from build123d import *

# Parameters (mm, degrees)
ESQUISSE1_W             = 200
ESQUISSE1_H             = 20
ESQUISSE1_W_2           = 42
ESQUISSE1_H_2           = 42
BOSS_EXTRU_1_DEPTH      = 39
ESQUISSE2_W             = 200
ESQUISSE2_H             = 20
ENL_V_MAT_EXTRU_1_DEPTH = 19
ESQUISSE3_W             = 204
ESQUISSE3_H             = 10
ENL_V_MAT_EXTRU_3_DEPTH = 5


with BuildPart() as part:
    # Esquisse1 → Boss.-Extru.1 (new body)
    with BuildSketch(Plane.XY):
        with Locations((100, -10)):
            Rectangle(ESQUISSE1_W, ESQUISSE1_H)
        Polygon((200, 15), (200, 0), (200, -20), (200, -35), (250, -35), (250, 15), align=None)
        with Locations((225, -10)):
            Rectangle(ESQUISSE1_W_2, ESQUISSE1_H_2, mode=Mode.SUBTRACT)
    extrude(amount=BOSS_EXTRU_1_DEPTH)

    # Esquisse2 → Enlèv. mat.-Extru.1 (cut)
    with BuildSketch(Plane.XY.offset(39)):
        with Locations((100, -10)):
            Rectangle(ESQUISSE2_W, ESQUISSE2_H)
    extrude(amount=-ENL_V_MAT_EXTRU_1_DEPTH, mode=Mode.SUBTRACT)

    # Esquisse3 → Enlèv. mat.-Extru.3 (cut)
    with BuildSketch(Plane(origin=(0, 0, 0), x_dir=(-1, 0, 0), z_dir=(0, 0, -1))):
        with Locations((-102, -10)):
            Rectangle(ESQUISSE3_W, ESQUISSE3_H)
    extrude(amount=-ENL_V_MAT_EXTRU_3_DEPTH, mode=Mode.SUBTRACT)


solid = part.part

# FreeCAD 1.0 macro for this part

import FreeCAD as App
import Part
import Sketcher

doc = App.newDocument("Part")
body = doc.addObject("PartDesign::Body", "Body")

# Sketch on XY plane
sketch1 = doc.addObject("Sketcher::SketchObject", "Sketch")
body.addObject(sketch1)
sketch1.AttachmentSupport = (doc.XY_Plane, [""])
sketch1.MapMode = "FlatFace"
sketch1.addGeometry(Part.LineSegment(App.Vector(0, 0, 0), App.Vector(0, -20, 0)), False)
sketch1.addGeometry(Part.LineSegment(App.Vector(0, -20, 0), App.Vector(200, -20, 0)), False)
sketch1.addGeometry(Part.LineSegment(App.Vector(200, -20, 0), App.Vector(200, -35, 0)), False)
sketch1.addGeometry(Part.LineSegment(App.Vector(200, -35, 0), App.Vector(250, -35, 0)), False)
sketch1.addGeometry(Part.LineSegment(App.Vector(250, -35, 0), App.Vector(250, 15, 0)), False)
sketch1.addGeometry(Part.LineSegment(App.Vector(250, 15, 0), App.Vector(200, 15, 0)), False)
sketch1.addGeometry(Part.LineSegment(App.Vector(200, 15, 0), App.Vector(200, 0, 0)), False)
sketch1.addGeometry(Part.LineSegment(App.Vector(200, 0, 0), App.Vector(0, 0, 0)), False)
sketch1.addGeometry(Part.LineSegment(App.Vector(246, -31, 0), App.Vector(204, -31, 0)), False)
sketch1.addGeometry(Part.LineSegment(App.Vector(204, -31, 0), App.Vector(204, 11, 0)), False)
sketch1.addGeometry(Part.LineSegment(App.Vector(204, 11, 0), App.Vector(246, 11, 0)), False)
sketch1.addGeometry(Part.LineSegment(App.Vector(246, 11, 0), App.Vector(246, -31, 0)), False)
sketch1.addConstraint(Sketcher.Constraint("Coincident", 0, 2, 1, 1))
sketch1.addConstraint(Sketcher.Constraint("Coincident", 1, 2, 2, 1))
sketch1.addConstraint(Sketcher.Constraint("Coincident", 2, 2, 3, 1))
sketch1.addConstraint(Sketcher.Constraint("Coincident", 3, 2, 4, 1))
sketch1.addConstraint(Sketcher.Constraint("Coincident", 4, 2, 5, 1))
sketch1.addConstraint(Sketcher.Constraint("Coincident", 5, 2, 6, 1))
sketch1.addConstraint(Sketcher.Constraint("Coincident", 6, 2, 7, 1))
sketch1.addConstraint(Sketcher.Constraint("Coincident", 7, 2, 0, 1))
sketch1.addConstraint(Sketcher.Constraint("Coincident", 8, 2, 9, 1))
sketch1.addConstraint(Sketcher.Constraint("Coincident", 9, 2, 10, 1))
sketch1.addConstraint(Sketcher.Constraint("Coincident", 10, 2, 11, 1))
sketch1.addConstraint(Sketcher.Constraint("Coincident", 11, 2, 8, 1))
sketch1.addConstraint(Sketcher.Constraint("Vertical", 0))
sketch1.addConstraint(Sketcher.Constraint("Horizontal", 1))
sketch1.addConstraint(Sketcher.Constraint("Vertical", 2))
sketch1.addConstraint(Sketcher.Constraint("Horizontal", 3))
sketch1.addConstraint(Sketcher.Constraint("Vertical", 4))
sketch1.addConstraint(Sketcher.Constraint("Horizontal", 5))
sketch1.addConstraint(Sketcher.Constraint("Vertical", 6))
sketch1.addConstraint(Sketcher.Constraint("Horizontal", 7))
sketch1.addConstraint(Sketcher.Constraint("Horizontal", 8))
sketch1.addConstraint(Sketcher.Constraint("Vertical", 9))
sketch1.addConstraint(Sketcher.Constraint("Horizontal", 10))
sketch1.addConstraint(Sketcher.Constraint("Vertical", 11))
sketch1.addConstraint(Sketcher.Constraint("Coincident", 7, 2, -1, 1))
sketch1.addConstraint(Sketcher.Constraint("Vertical", 2, 2, 5, 2))
sketch1.addConstraint(Sketcher.Constraint("Equal", 5, 4))
sketch1.addConstraint(Sketcher.Constraint("Equal", 2, 6))
sketch1.addConstraint(Sketcher.Constraint("Equal", 10, 9))
sketch1.addConstraint(Sketcher.Constraint("DistanceX", 1, 1, 1, 2, 200.0))
sketch1.addConstraint(Sketcher.Constraint("DistanceX", 3, 1, 3, 2, 50.0))
sketch1.addConstraint(Sketcher.Constraint("DistanceX", 8, 2, 8, 1, 42.0))
sketch1.addConstraint(Sketcher.Constraint("DistanceY", 0, 2, 0, 1, 20.0))
sketch1.addConstraint(Sketcher.Constraint("DistanceX", -1, 1, 8, 2, 204.0))
sketch1.addConstraint(Sketcher.Constraint("DistanceY", 8, 2, -1, 1, 31.0))
pad1 = doc.addObject("PartDesign::Pad", "Pad")
body.addObject(pad1)
pad1.Profile = sketch1
pad1.Length = 39

# Sketch on XY plane
sketch2 = doc.addObject("Sketcher::SketchObject", "Sketch001")
body.addObject(sketch2)
sketch2.AttachmentSupport = (doc.XY_Plane, [""])
sketch2.MapMode = "FlatFace"
sketch2.AttachmentOffset = App.Placement(App.Vector(0, 0, 39), App.Rotation())
sketch2.addGeometry(Part.LineSegment(App.Vector(0, 0, 0), App.Vector(0, -20, 0)), False)
sketch2.addGeometry(Part.LineSegment(App.Vector(0, -20, 0), App.Vector(200, -20, 0)), False)
sketch2.addGeometry(Part.LineSegment(App.Vector(200, -20, 0), App.Vector(200, 0, 0)), False)
sketch2.addGeometry(Part.LineSegment(App.Vector(200, 0, 0), App.Vector(0, 0, 0)), False)
sketch2.addConstraint(Sketcher.Constraint("Coincident", 0, 2, 1, 1))
sketch2.addConstraint(Sketcher.Constraint("Coincident", 1, 2, 2, 1))
sketch2.addConstraint(Sketcher.Constraint("Coincident", 2, 2, 3, 1))
sketch2.addConstraint(Sketcher.Constraint("Coincident", 3, 2, 0, 1))
sketch2.addConstraint(Sketcher.Constraint("Vertical", 0))
sketch2.addConstraint(Sketcher.Constraint("Horizontal", 1))
sketch2.addConstraint(Sketcher.Constraint("Vertical", 2))
sketch2.addConstraint(Sketcher.Constraint("Horizontal", 3))
sketch2.addConstraint(Sketcher.Constraint("Coincident", 3, 2, -1, 1))
sketch2.addConstraint(Sketcher.Constraint("DistanceX", 1, 1, 1, 2, 200.0))
sketch2.addConstraint(Sketcher.Constraint("DistanceY", 0, 2, 0, 1, 20.0))
pocket1 = doc.addObject("PartDesign::Pocket", "Pocket")
body.addObject(pocket1)
pocket1.Profile = sketch2
pocket1.Length = 19

# Sketch on XY plane
sketch3 = doc.addObject("Sketcher::SketchObject", "Sketch002")
body.addObject(sketch3)
sketch3.AttachmentSupport = (doc.XY_Plane, [""])
sketch3.MapMode = "FlatFace"
sketch3.addGeometry(Part.LineSegment(App.Vector(204, -5, 0), App.Vector(204, -15, 0)), False)
sketch3.addGeometry(Part.LineSegment(App.Vector(204, -15, 0), App.Vector(0, -15, 0)), False)
sketch3.addGeometry(Part.LineSegment(App.Vector(0, -15, 0), App.Vector(0, -5, 0)), False)
sketch3.addGeometry(Part.LineSegment(App.Vector(0, -5, 0), App.Vector(204, -5, 0)), False)
sketch3.addConstraint(Sketcher.Constraint("Coincident", 0, 2, 1, 1))
sketch3.addConstraint(Sketcher.Constraint("Coincident", 1, 2, 2, 1))
sketch3.addConstraint(Sketcher.Constraint("Coincident", 2, 2, 3, 1))
sketch3.addConstraint(Sketcher.Constraint("Coincident", 3, 2, 0, 1))
sketch3.addConstraint(Sketcher.Constraint("Vertical", 0))
sketch3.addConstraint(Sketcher.Constraint("Horizontal", 1))
sketch3.addConstraint(Sketcher.Constraint("Vertical", 2))
sketch3.addConstraint(Sketcher.Constraint("Horizontal", 3))
sketch3.addConstraint(Sketcher.Constraint("PointOnObject", 1, 2, -2))
sketch3.addConstraint(Sketcher.Constraint("DistanceX", 1, 2, 1, 1, 204.0))
sketch3.addConstraint(Sketcher.Constraint("DistanceY", 0, 2, 0, 1, 10.0))
sketch3.addConstraint(Sketcher.Constraint("DistanceY", 0, 2, -1, 1, 15.0))
pocket2 = doc.addObject("PartDesign::Pocket", "Pocket001")
body.addObject(pocket2)
pocket2.Profile = sketch3
pocket2.Length = 5
pocket2.Reversed = True

doc.recompute()
